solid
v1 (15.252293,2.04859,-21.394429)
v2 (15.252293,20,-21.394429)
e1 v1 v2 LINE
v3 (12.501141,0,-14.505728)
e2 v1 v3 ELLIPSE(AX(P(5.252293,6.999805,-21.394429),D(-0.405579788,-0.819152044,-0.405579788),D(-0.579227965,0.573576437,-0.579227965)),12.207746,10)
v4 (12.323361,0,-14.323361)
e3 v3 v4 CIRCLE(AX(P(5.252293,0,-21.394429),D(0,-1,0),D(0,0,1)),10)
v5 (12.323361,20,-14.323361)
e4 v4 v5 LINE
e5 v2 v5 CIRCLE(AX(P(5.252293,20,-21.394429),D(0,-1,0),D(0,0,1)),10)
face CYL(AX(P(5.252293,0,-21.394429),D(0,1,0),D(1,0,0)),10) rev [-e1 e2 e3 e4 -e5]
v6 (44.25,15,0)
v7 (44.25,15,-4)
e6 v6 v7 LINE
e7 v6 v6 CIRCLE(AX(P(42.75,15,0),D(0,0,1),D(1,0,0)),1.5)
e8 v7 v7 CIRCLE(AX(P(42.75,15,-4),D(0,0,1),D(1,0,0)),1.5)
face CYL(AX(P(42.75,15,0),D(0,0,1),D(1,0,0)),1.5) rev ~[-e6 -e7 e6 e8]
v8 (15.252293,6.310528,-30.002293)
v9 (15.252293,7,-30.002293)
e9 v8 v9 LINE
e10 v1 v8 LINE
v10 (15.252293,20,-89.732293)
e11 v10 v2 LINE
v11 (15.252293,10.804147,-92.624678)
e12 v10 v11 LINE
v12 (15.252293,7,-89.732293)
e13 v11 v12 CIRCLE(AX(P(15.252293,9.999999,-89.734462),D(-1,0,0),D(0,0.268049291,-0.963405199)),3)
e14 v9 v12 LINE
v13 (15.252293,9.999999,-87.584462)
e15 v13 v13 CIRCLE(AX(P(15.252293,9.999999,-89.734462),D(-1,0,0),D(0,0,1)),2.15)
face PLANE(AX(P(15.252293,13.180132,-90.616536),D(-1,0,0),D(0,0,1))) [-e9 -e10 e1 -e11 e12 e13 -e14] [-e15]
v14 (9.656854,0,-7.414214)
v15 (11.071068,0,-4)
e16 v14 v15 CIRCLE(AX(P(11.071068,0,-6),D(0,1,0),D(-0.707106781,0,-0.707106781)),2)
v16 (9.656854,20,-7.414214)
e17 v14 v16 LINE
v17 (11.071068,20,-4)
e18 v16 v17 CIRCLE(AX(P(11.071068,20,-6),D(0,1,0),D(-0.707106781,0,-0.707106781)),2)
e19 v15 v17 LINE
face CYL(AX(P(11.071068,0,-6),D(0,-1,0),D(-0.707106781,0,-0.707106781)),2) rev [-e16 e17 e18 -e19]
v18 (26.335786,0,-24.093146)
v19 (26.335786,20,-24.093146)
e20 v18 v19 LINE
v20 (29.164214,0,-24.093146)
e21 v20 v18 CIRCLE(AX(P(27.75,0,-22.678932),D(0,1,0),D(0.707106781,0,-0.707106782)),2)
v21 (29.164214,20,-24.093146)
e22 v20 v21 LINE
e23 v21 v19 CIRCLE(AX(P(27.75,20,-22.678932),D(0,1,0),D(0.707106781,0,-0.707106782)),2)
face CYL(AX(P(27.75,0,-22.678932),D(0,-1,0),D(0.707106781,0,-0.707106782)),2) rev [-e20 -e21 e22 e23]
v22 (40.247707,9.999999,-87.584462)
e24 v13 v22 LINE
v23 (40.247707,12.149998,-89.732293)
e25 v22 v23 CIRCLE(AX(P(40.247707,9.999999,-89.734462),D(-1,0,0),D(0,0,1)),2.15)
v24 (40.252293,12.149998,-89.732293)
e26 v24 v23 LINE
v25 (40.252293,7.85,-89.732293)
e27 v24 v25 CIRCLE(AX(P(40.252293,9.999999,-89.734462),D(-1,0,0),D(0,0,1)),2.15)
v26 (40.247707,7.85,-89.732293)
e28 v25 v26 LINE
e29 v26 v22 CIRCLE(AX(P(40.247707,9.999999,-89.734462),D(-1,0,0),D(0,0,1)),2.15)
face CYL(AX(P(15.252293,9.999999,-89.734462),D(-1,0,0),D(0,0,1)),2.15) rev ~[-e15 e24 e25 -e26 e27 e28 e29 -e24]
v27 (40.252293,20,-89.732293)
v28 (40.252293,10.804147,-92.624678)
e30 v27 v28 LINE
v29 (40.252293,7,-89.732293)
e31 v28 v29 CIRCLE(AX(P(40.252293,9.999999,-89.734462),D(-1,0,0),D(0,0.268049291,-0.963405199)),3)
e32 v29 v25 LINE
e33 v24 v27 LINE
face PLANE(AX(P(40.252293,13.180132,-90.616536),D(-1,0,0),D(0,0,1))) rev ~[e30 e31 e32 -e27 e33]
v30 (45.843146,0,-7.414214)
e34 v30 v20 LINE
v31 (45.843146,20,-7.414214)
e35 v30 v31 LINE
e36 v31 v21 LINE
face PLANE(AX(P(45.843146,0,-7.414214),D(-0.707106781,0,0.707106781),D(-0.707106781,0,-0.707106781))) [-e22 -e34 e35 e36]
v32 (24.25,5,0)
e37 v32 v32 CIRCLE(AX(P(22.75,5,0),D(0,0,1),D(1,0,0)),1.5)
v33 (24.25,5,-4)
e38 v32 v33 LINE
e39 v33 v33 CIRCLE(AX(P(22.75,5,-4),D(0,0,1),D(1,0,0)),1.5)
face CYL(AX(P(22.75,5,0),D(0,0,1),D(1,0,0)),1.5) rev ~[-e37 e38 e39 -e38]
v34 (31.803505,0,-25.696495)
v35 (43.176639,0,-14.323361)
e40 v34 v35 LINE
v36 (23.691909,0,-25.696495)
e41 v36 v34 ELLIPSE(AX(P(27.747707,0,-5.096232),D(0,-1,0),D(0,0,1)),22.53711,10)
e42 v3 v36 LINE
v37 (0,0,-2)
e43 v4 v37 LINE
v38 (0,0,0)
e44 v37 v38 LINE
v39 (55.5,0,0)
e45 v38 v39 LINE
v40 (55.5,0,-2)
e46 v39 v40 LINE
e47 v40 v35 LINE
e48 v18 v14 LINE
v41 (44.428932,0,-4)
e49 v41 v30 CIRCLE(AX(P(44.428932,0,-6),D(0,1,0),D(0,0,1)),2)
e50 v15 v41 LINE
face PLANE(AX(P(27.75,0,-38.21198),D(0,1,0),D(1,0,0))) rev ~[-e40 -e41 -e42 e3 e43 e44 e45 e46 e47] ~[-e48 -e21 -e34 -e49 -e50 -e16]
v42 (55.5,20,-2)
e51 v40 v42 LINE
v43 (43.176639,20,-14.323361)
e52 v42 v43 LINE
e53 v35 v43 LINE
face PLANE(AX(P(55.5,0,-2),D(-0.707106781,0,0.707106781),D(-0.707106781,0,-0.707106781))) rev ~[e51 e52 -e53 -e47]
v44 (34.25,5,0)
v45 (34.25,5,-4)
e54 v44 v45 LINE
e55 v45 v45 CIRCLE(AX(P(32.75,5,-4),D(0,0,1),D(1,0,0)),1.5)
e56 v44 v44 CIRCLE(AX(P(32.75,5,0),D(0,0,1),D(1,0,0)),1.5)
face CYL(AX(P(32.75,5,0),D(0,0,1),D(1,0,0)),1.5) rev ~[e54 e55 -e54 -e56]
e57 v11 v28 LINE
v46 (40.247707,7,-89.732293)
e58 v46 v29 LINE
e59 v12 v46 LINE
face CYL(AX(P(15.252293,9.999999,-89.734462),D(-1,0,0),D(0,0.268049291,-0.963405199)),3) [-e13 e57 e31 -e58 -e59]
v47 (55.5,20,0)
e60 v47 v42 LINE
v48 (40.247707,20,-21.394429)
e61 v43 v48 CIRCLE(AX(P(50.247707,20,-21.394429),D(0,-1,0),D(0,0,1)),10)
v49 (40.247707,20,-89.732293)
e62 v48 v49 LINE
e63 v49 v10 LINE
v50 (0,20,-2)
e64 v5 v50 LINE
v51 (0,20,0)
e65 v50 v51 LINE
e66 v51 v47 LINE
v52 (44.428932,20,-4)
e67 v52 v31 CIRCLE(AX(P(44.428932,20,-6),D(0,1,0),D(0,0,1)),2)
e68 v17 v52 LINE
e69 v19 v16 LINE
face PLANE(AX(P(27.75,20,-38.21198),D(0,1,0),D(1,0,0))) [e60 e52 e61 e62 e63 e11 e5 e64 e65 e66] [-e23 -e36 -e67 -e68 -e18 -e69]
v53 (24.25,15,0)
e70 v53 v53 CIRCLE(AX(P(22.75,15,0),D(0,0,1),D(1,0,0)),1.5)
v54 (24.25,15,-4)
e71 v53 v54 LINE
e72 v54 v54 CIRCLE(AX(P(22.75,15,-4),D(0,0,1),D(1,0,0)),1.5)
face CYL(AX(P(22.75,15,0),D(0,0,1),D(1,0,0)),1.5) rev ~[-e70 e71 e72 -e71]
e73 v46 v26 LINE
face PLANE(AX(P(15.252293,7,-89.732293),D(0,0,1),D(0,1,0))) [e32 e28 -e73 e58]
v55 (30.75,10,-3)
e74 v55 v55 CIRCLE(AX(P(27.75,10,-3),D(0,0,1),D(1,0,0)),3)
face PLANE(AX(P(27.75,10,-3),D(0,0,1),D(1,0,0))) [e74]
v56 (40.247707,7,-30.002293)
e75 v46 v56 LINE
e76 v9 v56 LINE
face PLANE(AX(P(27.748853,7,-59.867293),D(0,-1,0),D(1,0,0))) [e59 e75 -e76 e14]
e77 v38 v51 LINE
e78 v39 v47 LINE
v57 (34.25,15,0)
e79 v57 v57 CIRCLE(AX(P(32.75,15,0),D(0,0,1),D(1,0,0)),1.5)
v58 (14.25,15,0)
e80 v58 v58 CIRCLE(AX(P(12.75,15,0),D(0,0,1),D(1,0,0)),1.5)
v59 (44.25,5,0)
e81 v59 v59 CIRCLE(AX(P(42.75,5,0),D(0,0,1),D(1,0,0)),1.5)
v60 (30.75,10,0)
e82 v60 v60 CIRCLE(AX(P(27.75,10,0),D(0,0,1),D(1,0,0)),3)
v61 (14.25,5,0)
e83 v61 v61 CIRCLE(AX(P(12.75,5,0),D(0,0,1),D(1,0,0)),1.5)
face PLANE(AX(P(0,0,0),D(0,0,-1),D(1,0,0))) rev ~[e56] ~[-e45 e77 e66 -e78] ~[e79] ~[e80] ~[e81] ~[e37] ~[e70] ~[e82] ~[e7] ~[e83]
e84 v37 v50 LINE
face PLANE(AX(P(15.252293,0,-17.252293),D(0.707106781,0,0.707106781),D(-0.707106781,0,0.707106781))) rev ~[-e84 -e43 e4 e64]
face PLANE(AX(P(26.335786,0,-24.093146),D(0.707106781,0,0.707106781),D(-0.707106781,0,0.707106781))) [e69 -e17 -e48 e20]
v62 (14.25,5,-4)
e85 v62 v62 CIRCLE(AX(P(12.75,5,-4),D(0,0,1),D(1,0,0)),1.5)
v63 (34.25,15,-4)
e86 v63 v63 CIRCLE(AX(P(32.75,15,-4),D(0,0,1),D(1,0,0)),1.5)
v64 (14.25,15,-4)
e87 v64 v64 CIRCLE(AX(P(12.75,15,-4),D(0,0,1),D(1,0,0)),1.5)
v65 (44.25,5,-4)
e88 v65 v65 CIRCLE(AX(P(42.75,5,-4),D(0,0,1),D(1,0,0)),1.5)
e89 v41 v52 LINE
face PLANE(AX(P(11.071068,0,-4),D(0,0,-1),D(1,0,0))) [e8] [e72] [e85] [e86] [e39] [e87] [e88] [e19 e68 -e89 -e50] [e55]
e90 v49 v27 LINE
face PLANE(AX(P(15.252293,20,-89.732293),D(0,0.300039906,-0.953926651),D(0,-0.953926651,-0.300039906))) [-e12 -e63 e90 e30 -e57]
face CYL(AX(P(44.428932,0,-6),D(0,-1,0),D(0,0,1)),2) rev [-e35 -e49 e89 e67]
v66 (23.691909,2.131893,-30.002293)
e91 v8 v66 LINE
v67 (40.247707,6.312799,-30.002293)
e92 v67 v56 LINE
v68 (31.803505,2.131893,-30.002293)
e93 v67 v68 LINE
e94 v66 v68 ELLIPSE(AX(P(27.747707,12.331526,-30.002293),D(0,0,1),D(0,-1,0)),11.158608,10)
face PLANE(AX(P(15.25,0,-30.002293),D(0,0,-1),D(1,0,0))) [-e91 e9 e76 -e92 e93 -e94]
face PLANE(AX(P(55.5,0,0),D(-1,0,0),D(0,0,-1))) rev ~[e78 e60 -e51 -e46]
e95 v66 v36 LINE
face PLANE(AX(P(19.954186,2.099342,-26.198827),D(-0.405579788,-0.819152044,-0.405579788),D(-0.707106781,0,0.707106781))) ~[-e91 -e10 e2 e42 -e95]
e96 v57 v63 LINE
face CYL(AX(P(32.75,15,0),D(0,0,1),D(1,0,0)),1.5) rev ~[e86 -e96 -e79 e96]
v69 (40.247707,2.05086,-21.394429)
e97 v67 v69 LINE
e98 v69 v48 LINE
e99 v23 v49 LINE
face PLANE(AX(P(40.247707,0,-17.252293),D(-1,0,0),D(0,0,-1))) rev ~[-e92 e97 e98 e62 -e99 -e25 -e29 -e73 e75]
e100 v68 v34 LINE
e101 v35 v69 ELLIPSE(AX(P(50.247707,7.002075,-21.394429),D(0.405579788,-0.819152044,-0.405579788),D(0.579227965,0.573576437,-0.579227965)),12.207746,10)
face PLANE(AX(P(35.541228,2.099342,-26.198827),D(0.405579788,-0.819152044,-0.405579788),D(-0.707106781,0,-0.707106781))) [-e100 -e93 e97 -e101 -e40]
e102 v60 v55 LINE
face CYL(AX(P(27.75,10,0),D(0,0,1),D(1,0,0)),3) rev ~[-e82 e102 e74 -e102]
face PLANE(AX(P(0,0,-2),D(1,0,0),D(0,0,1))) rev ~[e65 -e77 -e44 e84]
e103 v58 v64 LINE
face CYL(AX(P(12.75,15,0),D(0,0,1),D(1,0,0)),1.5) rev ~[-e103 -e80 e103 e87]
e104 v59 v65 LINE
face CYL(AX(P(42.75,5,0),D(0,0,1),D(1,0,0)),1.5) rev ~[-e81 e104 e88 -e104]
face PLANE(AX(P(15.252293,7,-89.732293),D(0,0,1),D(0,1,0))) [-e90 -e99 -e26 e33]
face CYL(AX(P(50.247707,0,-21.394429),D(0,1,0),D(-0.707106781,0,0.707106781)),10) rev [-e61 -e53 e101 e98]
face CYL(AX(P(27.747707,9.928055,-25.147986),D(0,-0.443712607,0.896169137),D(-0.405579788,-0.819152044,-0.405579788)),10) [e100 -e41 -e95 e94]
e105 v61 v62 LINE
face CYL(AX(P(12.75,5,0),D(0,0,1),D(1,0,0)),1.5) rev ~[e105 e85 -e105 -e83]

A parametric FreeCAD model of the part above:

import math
import FreeCAD as App
import Part
import Sketcher
from FreeCAD import Vector
Q = App.Units.Quantity


def edges_at(feature, points):
    """Names of the edges that pass closest to the given points."""
    edges = feature.Shape.Edges
    near = lambda p: min(range(len(edges)), key=lambda i: edges[i].distToShape(Part.Vertex(*p))[0])
    return sorted({f"Edge{near(p) + 1}" for p in points})

doc = App.newDocument("Part")
body = doc.addObject("PartDesign::Body", "Body")

sketch1 = body.newObject("Sketcher::SketchObject", "Sketch")
sketch1.AttachmentSupport = (doc.getObject("XZ_Plane"), [""])
sketch1.MapMode = "FlatFace"
sketch1.addGeometry([
    Part.LineSegment(Vector(40.2, -89.7, 0), Vector(15.3, -89.7, 0)),
    Part.LineSegment(Vector(15.3, -89.7, 0), Vector(15.3, -17.3, 0)),
    Part.LineSegment(Vector(15.3, -17.3, 0), Vector(0, -2, 0)),
    Part.LineSegment(Vector(0, -2, 0), Vector(0, 0, 0)),
    Part.LineSegment(Vector(0, 0, 0), Vector(55.5, 0, 0)),
    Part.LineSegment(Vector(55.5, 0, 0), Vector(55.5, -2, 0)),
    Part.LineSegment(Vector(55.5, -2, 0), Vector(40.2, -17.3, 0)),
    Part.LineSegment(Vector(40.2, -17.3, 0), Vector(40.2, -89.7, 0)),
    Part.LineSegment(Vector(44.4, -4, 0), Vector(11.1, -4, 0)),
    Part.ArcOfCircle(Part.Circle(Vector(11.1, -6, 0), Vector(0, 0, 1), 2), math.radians(90), math.radians(225)),
    Part.LineSegment(Vector(9.7, -7.4, 0), Vector(26.3, -24.1, 0)),
    Part.ArcOfCircle(Part.Circle(Vector(27.8, -22.7, 0), Vector(0, 0, 1), 2), math.radians(-135), math.radians(-45)),
    Part.LineSegment(Vector(29.2, -24.1, 0), Vector(45.8, -7.4, 0)),
    Part.ArcOfCircle(Part.Circle(Vector(44.4, -6, 0), Vector(0, 0, 1), 2), math.radians(-45), math.radians(90)),
], False)
sketch1.addConstraint([
    Sketcher.Constraint("Coincident", 0, 2, 1, 1),
    Sketcher.Constraint("Coincident", 1, 2, 2, 1),
    Sketcher.Constraint("Coincident", 2, 2, 3, 1),
    Sketcher.Constraint("Coincident", 3, 2, 4, 1),
    Sketcher.Constraint("Coincident", 4, 2, 5, 1),
    Sketcher.Constraint("Coincident", 5, 2, 6, 1),
    Sketcher.Constraint("Coincident", 6, 2, 7, 1),
    Sketcher.Constraint("Coincident", 7, 2, 0, 1),
    Sketcher.Constraint("Tangent", 8, 2, 9, 1),
    Sketcher.Constraint("Tangent", 9, 2, 10, 1),
    Sketcher.Constraint("Tangent", 10, 2, 11, 1),
    Sketcher.Constraint("Tangent", 11, 2, 12, 1),
    Sketcher.Constraint("Tangent", 12, 2, 13, 1),
    Sketcher.Constraint("Tangent", 13, 2, 8, 1),
    Sketcher.Constraint("Horizontal", 0),
    Sketcher.Constraint("Vertical", 1),
    Sketcher.Constraint("Vertical", 3),
    Sketcher.Constraint("Horizontal", 4),
    Sketcher.Constraint("Vertical", 5),
    Sketcher.Constraint("Vertical", 7),
    Sketcher.Constraint("Horizontal", 8),
    Sketcher.Constraint("Coincident", 3, 2, -1, 1),
    Sketcher.Constraint("Equal", 9, 11),
    Sketcher.Constraint("Equal", 11, 13),
    Sketcher.Constraint("Perpendicular", 2, 6),
    Sketcher.Constraint("Perpendicular", 6, 10),
    Sketcher.Constraint("Perpendicular", 10, 12),
    Sketcher.Constraint("Horizontal", 2, 2, 5, 2),
    Sketcher.Constraint("Horizontal", 1, 2, 6, 2),
    Sketcher.Constraint("Horizontal", 10, 2, 11, 2),
    Sketcher.Constraint("Radius", 9, Q("2 mm")),
    Sketcher.Constraint("DistanceY", 3, 1, 3, 2, Q("2 mm")),
    Sketcher.Constraint("DistanceX", 4, 1, 4, 2, Q("55.5 mm")),
    Sketcher.Constraint("DistanceY", 9, 3, -1, 1, Q("6 mm")),
    Sketcher.Constraint("DistanceY", 1, 1, 1, 2, Q("72.48 mm")),
    Sketcher.Constraint("Distance", 2, Q("21.57 mm")),
    Sketcher.Constraint("DistanceX", -1, 1, 11, 3, Q("27.75 mm")),
    Sketcher.Constraint("DistanceX", 8, 2, 8, 1, Q("33.357864 mm")),
])
pad1 = body.newObject("PartDesign::Pad", "Pad")
pad1.Profile = sketch1
pad1.Length = 20
pad1.Reversed = True

sketch2 = body.newObject("Sketcher::SketchObject", "Sketch001")
sketch2.AttachmentSupport = (doc.getObject("XY_Plane"), [""])
sketch2.MapMode = "FlatFace"
sketch2.addGeometry([
    Part.Circle(Vector(12.8, 15, 0), Vector(0, 0, 1), 1.5),
    Part.Circle(Vector(22.8, 15, 0), Vector(0, 0, 1), 1.5),
    Part.Circle(Vector(32.8, 15, 0), Vector(0, 0, 1), 1.5),
    Part.Circle(Vector(42.8, 15, 0), Vector(0, 0, 1), 1.5),
    Part.Circle(Vector(42.8, 5, 0), Vector(0, 0, 1), 1.5),
    Part.Circle(Vector(32.8, 5, 0), Vector(0, 0, 1), 1.5),
    Part.Circle(Vector(22.8, 5, 0), Vector(0, 0, 1), 1.5),
    Part.Circle(Vector(12.8, 5, 0), Vector(0, 0, 1), 1.5),
], False)
sketch2.addConstraint([
    Sketcher.Constraint("Equal", 0, 1),
    Sketcher.Constraint("Equal", 1, 2),
    Sketcher.Constraint("Equal", 2, 3),
    Sketcher.Constraint("Equal", 3, 4),
    Sketcher.Constraint("Equal", 4, 5),
    Sketcher.Constraint("Equal", 5, 6),
    Sketcher.Constraint("Equal", 6, 7),
    Sketcher.Constraint("Horizontal", 0, 3, 1, 3),
    Sketcher.Constraint("Horizontal", 1, 3, 2, 3),
    Sketcher.Constraint("Horizontal", 2, 3, 3, 3),
    Sketcher.Constraint("Horizontal", 4, 3, 5, 3),
    Sketcher.Constraint("Horizontal", 5, 3, 6, 3),
    Sketcher.Constraint("Horizontal", 6, 3, 7, 3),
    Sketcher.Constraint("Vertical", 3, 3, 4, 3),
    Sketcher.Constraint("Vertical", 2, 3, 5, 3),
    Sketcher.Constraint("Vertical", 1, 3, 6, 3),
    Sketcher.Constraint("Vertical", 0, 3, 7, 3),
    Sketcher.Constraint("Diameter", 0, Q("3 mm")),
    Sketcher.Constraint("DistanceY", -1, 1, 0, 3, Q("15 mm")),
    Sketcher.Constraint("DistanceY", -1, 1, 4, 3, Q("5 mm")),
    Sketcher.Constraint("DistanceX", 0, 3, 1, 3, Q("10 mm")),
    Sketcher.Constraint("DistanceX", 1, 3, 2, 3, Q("10 mm")),
    Sketcher.Constraint("DistanceX", 2, 3, 3, 3, Q("10 mm")),
    Sketcher.Constraint("DistanceX", -1, 1, 0, 3, Q("12.75 mm")),
])
pocket1 = body.newObject("PartDesign::Pocket", "Pocket")
pocket1.Profile = sketch2
pocket1.Length = 5

sketch3 = body.newObject("Sketcher::SketchObject", "Sketch002")
sketch3.AttachmentSupport = (doc.getObject("XY_Plane"), [""])
sketch3.MapMode = "FlatFace"
sketch3.addGeometry(Part.Circle(Vector(27.8, 10, 0), Vector(0, 0, 1), 3), False)
sketch3.addConstraint([
    Sketcher.Constraint("Diameter", 0, Q("6 mm")),
    Sketcher.Constraint("DistanceY", -1, 1, 0, 3, Q("10 mm")),
    Sketcher.Constraint("DistanceX", -1, 1, 0, 3, Q("27.75 mm")),
])
pocket2 = body.newObject("PartDesign::Pocket", "Pocket001")
pocket2.Profile = sketch3
pocket2.Length = 3

sketch4 = body.newObject("Sketcher::SketchObject", "Sketch003")
sketch4.AttachmentSupport = (doc.getObject("XZ_Plane"), [""])
sketch4.MapMode = "FlatFace"
sketch4.addGeometry([
    Part.LineSegment(Vector(15, -30, 0), Vector(15, -90, 0)),
    Part.LineSegment(Vector(15, -90, 0), Vector(40, -90, 0)),
    Part.LineSegment(Vector(40, -90, 0), Vector(40, -30, 0)),
    Part.LineSegment(Vector(40, -30, 0), Vector(15, -30, 0)),
], False)
sketch4.addConstraint([
    Sketcher.Constraint("Coincident", 0, 2, 1, 1),
    Sketcher.Constraint("Coincident", 1, 2, 2, 1),
    Sketcher.Constraint("Coincident", 2, 2, 3, 1),
    Sketcher.Constraint("Coincident", 3, 2, 0, 1),
    Sketcher.Constraint("Vertical", 0),
    Sketcher.Constraint("Horizontal", 1),
    Sketcher.Constraint("Vertical", 2),
    Sketcher.Constraint("Horizontal", 3),
    Sketcher.Constraint("DistanceY", 0, 2, 0, 1, Q("59.73 mm")),
    Sketcher.Constraint("DistanceX", -1, 1, 0, 2, Q("15.25 mm")),
    Sketcher.Constraint("DistanceX", 1, 1, 1, 2, Q("24.997707 mm")),
    Sketcher.Constraint("DistanceY", 0, 2, -1, 1, Q("89.732293 mm")),
])
pocket3 = body.newObject("PartDesign::Pocket", "Pocket002")
pocket3.Profile = sketch4
pocket3.Length = 7

sketch5 = body.newObject("Sketcher::SketchObject", "Sketch004")
sketch5.AttachmentSupport = (doc.getObject("YZ_Plane"), [""])
sketch5.MapMode = "FlatFace"
sketch5.AttachmentOffset = App.Placement(Vector(0, 0, 15.252293), App.Rotation())
sketch5.addGeometry([
    Part.LineSegment(Vector(20, -89.7, 0), Vector(10.8, -92.6, 0)),
    Part.ArcOfCircle(Part.Circle(Vector(10, -89.7, 0), Vector(0, 0, 1), 3), math.radians(180), math.radians(286)),
    Part.LineSegment(Vector(7, -89.7, 0), Vector(20, -89.7, 0)),
], False)
sketch5.addConstraint([
    Sketcher.Constraint("Coincident", 0, 2, 1, 2),
    Sketcher.Constraint("Coincident", 1, 1, 2, 1),
    Sketcher.Constraint("Coincident", 2, 2, 0, 1),
    Sketcher.Constraint("Horizontal", 2),
    Sketcher.Constraint("Radius", 1, Q("3 mm")),
    Sketcher.Constraint("DistanceX", 2, 1, 2, 2, Q("13 mm")),
    Sketcher.Constraint("DistanceX", -1, 1, 1, 3, Q("9.999999 mm")),
    Sketcher.Constraint("Angle", 0, Q("-162.54 deg")),
    Sketcher.Constraint("Distance", 0, Q("9.64 mm")),
    Sketcher.Constraint("DistanceY", 1, 3, -1, 1, Q("89.734462 mm")),
])
pad2 = body.newObject("PartDesign::Pad", "Pad001")
pad2.Profile = sketch5
pad2.Length = 25

sketch6 = body.newObject("Sketcher::SketchObject", "Sketch005")
sketch6.AttachmentSupport = (doc.getObject("YZ_Plane"), [""])
sketch6.MapMode = "FlatFace"
sketch6.AttachmentOffset = App.Placement(Vector(0, 0, 15.252293), App.Rotation())
sketch6.addGeometry(Part.Circle(Vector(10, -89.7, 0), Vector(0, 0, 1), 2.1), False)
sketch6.addConstraint([
    Sketcher.Constraint("Diameter", 0, Q("4.3 mm")),
    Sketcher.Constraint("DistanceX", -1, 1, 0, 3, Q("9.999999 mm")),
    Sketcher.Constraint("DistanceY", 0, 3, -1, 1, Q("89.734462 mm")),
])
pocket4 = body.newObject("PartDesign::Pocket", "Pocket003")
pocket4.Profile = sketch6
pocket4.Type = "ThroughAll"
pocket4.Reversed = True

sketch7 = body.newObject("Sketcher::SketchObject", "Sketch006")
sketch7.Placement = App.Placement(Vector(9.45846, -19.103312, -9.45846), App.Rotation(Vector(-0.707106781, 0, -0.707106781), Vector(0.579227965, 0.573576437, -0.579227965), Vector(0.405579788, -0.819152044, -0.405579788), "ZXY"))
sketch7.addGeometry([
    Part.LineSegment(Vector(-16, 33, 0), Vector(3, 33, 0)),
    Part.LineSegment(Vector(3, 33, 0), Vector(-7, 45, 0)),
    Part.LineSegment(Vector(-7, 45, 0), Vector(-16, 33, 0)),
], False)
sketch7.addConstraint([
    Sketcher.Constraint("Coincident", 0, 2, 1, 1),
    Sketcher.Constraint("Coincident", 1, 2, 2, 1),
    Sketcher.Constraint("Coincident", 2, 2, 0, 1),
    Sketcher.Constraint("Horizontal", 0),
    Sketcher.Constraint("Equal", 1, 2),
    Sketcher.Constraint("DistanceX", 0, 1, 0, 2, Q("19.308276 mm")),
    Sketcher.Constraint("Distance", 1, Q("15.343763 mm")),
    Sketcher.Constraint("DistanceX", -1, 1, 0, 2, Q("3.048063 mm")),
    Sketcher.Constraint("DistanceY", -1, 1, 0, 2, Q("33.305608 mm")),
])
pocket5 = body.newObject("PartDesign::Pocket", "Pocket004")
pocket5.Profile = sketch7
pocket5.Length = 10
pocket5.Reversed = True
doc.recompute()

datumplane = body.newObject("PartDesign::Plane", "DatumPlane")
datumplane.AttachmentSupport = (doc.getObject("YZ_Plane"), [""])
datumplane.MapMode = "FlatFace"
datumplane.AttachmentOffset = App.Placement(Vector(0, 0, 27.747707), App.Rotation())
mirrored = body.newObject("PartDesign::Mirrored", "Mirrored")
mirrored.Originals = [pocket5]
mirrored.MirrorPlane = (datumplane, [""])
body.Tip = mirrored
doc.recompute()

fillet = body.newObject("PartDesign::Fillet", "Fillet")
fillet.Base = (mirrored, edges_at(mirrored, [(27.748, 0.062, -29.877)]))
fillet.Radius = 10
doc.recompute()

fillet2 = body.newObject("PartDesign::Fillet", "Fillet001")
fillet2.Base = (fillet, edges_at(fillet, [(15.252, 10, -17.252), (40.248, 10, -17.252)]))
fillet2.Radius = 10

doc.recompute()
